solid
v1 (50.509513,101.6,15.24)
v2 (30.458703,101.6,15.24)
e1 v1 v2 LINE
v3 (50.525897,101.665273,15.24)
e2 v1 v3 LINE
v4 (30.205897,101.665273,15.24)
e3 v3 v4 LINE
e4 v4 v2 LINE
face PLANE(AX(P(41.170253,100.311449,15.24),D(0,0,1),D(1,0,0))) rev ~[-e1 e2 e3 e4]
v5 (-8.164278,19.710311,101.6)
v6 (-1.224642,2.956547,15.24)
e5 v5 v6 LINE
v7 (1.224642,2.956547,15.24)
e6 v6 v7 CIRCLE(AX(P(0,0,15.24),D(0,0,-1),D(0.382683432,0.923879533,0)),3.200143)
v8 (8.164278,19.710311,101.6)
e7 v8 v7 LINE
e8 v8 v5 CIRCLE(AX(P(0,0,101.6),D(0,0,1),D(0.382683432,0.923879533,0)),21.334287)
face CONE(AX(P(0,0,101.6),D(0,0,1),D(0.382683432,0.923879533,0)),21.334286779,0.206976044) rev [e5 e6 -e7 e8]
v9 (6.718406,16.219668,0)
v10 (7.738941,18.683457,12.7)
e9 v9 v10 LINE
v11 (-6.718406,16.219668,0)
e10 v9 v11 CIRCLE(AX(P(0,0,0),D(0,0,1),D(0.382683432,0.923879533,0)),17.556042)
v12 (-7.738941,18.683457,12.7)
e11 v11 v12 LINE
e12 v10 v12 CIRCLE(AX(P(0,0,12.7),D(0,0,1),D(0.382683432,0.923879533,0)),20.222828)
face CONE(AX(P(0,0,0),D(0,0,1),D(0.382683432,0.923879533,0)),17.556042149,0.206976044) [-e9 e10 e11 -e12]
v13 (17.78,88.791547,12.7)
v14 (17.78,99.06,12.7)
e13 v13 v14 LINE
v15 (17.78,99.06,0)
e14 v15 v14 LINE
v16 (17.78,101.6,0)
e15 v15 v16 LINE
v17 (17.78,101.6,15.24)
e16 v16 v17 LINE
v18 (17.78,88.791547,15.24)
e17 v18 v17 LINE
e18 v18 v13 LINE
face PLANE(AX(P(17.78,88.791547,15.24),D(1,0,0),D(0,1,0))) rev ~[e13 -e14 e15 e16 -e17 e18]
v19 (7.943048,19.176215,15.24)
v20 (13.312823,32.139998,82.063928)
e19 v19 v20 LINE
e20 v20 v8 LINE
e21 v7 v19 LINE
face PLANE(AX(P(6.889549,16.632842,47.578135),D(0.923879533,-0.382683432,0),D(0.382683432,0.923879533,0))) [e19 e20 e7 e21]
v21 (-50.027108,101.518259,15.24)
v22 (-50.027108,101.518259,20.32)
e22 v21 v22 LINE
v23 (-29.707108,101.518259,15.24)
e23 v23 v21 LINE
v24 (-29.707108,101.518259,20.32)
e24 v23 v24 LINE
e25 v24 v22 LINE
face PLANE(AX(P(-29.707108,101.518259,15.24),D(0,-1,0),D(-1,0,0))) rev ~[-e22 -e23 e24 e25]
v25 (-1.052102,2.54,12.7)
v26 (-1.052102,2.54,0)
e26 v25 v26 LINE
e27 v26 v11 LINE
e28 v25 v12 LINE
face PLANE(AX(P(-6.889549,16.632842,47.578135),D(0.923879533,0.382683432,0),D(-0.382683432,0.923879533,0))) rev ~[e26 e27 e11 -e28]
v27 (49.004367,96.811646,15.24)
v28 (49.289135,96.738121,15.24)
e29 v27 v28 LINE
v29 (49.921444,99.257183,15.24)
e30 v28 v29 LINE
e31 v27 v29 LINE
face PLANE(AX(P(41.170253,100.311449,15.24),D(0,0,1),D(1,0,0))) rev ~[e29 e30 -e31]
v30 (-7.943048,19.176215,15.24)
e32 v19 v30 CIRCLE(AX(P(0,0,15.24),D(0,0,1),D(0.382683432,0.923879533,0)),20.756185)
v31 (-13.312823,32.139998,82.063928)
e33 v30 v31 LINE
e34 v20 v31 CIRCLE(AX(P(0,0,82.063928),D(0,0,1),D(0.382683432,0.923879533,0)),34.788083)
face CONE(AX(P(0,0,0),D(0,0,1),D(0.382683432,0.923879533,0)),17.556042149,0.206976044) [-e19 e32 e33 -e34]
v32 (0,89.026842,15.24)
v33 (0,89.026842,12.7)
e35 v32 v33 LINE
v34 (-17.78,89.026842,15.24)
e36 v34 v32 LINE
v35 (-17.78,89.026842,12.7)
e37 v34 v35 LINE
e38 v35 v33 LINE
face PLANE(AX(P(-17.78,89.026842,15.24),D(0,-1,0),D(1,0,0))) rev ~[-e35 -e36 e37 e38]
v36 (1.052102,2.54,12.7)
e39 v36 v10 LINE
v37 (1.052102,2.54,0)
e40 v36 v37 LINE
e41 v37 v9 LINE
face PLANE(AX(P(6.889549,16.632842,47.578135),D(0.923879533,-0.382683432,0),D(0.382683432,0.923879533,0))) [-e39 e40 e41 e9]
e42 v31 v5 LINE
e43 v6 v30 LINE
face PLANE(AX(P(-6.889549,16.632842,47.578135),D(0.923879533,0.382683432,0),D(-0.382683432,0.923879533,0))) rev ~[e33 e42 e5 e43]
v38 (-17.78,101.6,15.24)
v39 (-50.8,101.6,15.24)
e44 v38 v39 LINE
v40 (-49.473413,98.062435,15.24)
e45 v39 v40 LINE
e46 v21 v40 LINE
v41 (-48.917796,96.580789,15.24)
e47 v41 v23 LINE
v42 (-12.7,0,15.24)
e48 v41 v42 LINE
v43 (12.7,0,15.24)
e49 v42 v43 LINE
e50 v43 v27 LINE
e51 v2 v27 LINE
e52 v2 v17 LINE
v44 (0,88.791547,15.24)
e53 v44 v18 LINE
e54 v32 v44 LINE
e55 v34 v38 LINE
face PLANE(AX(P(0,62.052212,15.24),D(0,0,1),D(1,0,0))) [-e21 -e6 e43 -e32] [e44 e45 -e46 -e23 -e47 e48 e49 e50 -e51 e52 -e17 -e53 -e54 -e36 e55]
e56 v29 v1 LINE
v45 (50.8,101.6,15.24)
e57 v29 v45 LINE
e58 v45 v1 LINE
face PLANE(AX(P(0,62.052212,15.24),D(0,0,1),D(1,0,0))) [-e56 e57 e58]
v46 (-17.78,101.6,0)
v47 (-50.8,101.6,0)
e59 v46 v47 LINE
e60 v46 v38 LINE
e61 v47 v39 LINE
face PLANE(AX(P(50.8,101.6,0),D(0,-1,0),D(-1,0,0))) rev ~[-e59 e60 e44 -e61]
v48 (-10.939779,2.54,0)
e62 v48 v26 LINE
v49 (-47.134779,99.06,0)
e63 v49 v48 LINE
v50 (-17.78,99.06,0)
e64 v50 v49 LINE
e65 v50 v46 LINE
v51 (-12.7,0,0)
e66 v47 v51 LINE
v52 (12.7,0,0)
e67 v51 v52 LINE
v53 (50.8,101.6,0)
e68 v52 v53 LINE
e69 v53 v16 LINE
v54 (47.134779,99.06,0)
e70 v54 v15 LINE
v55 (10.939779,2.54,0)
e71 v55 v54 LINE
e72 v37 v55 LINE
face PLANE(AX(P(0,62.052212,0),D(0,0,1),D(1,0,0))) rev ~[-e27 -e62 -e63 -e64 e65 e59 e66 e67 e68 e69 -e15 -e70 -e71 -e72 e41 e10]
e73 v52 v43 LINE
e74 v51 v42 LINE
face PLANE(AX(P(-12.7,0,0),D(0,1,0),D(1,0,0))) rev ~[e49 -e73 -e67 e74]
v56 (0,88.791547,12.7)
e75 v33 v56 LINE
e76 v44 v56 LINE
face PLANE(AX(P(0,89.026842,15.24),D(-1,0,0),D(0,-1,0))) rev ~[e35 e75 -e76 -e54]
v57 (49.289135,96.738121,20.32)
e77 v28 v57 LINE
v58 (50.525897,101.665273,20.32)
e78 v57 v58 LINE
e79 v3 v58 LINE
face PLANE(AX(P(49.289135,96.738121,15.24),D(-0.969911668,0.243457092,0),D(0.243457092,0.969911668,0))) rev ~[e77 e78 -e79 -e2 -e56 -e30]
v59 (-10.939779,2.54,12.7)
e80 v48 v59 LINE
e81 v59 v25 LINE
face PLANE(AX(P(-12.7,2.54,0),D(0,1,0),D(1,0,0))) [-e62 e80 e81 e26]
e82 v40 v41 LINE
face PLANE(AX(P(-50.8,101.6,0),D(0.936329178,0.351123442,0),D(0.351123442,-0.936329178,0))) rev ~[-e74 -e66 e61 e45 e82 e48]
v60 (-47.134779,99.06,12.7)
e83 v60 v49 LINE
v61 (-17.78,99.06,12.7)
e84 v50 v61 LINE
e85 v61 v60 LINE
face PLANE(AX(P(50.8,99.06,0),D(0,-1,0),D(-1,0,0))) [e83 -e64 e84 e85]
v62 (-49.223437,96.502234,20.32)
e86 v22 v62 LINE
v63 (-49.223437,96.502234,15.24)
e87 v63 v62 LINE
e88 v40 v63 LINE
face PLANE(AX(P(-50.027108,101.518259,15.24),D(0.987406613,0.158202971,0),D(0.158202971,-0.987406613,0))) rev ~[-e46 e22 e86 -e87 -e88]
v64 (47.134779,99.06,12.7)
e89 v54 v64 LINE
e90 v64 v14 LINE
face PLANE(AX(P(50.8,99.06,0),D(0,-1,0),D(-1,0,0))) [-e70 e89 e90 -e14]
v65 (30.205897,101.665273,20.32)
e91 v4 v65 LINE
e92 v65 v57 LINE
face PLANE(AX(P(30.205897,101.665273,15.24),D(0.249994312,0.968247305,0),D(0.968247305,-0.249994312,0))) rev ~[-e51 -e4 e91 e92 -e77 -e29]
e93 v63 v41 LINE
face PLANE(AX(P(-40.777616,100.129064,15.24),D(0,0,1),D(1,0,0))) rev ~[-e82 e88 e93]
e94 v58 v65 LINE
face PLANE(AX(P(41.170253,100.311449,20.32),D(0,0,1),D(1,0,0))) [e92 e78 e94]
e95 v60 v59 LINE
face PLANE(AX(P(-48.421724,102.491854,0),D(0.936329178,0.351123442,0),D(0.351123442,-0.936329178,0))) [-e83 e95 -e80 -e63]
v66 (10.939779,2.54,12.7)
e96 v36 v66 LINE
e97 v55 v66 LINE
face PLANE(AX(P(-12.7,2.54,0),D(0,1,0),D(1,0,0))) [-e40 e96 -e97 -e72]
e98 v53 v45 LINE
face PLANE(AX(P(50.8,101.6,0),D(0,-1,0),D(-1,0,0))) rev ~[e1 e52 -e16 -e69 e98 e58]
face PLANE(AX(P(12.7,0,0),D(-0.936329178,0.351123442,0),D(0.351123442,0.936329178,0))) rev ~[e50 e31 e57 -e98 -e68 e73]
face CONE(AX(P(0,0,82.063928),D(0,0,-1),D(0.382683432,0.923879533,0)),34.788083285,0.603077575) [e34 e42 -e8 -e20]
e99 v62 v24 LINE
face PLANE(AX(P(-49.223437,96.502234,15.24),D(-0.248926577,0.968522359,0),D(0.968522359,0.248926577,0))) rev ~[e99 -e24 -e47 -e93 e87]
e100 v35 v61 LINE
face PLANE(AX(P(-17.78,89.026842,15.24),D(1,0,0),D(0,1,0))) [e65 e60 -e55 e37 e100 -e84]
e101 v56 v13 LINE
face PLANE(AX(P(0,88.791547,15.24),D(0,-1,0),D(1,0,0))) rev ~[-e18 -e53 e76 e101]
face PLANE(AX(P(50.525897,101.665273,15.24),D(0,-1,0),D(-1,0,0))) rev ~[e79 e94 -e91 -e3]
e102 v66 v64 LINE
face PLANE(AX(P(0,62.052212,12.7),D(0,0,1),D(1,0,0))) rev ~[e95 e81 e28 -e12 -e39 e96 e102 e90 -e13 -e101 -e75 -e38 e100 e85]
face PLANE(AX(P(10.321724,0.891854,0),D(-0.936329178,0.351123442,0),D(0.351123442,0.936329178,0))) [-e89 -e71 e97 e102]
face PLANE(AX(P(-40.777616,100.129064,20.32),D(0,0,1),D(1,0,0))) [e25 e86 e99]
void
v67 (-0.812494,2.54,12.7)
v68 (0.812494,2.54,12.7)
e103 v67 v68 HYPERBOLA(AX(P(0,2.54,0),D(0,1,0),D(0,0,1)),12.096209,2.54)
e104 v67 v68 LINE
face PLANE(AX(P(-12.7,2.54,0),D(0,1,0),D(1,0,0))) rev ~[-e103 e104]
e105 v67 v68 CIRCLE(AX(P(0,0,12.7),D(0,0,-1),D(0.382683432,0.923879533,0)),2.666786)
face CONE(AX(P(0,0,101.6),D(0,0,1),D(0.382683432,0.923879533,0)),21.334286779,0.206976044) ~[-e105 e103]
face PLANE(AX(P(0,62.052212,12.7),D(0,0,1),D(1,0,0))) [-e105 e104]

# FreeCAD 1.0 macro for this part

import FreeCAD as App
import Part
import Sketcher
Q = App.Units.Quantity


def faces_at(feature, points):
    """Names of the faces that lie closest to the given points."""
    faces = feature.Shape.Faces
    near = lambda p: min(range(len(faces)), key=lambda i: faces[i].distToShape(Part.Vertex(*p))[0])
    return sorted({f"Face{near(p) + 1}" for p in points})


def add_polygon(sketch, points):
    """Adds a closed chain of lines whose ends are joined by coincident constraints."""
    first, n = sketch.GeometryCount, len(points)
    for a, b in zip(points, points[1:] + points[:1]):
        sketch.addGeometry(Part.LineSegment(App.Vector(*a, 0), App.Vector(*b, 0)), False)
    for i in range(n):
        sketch.addConstraint(Sketcher.Constraint("Coincident", first + i, 2, first + (i + 1) % n, 1))

doc = App.newDocument("Part")
body = doc.addObject("PartDesign::Body", "Body")

# Sketch on XY plane
sketch1 = doc.addObject("Sketcher::SketchObject", "Sketch")
body.addObject(sketch1)
sketch1.AttachmentSupport = (doc.XY_Plane, [""])
sketch1.MapMode = "FlatFace"
add_polygon(sketch1, [(-51, 102), (-13, 0), (13, 0), (51, 102)])  # lines 0-3
sketch1.addConstraint(Sketcher.Constraint("Horizontal", 1))
sketch1.addConstraint(Sketcher.Constraint("Horizontal", 3))
sketch1.addConstraint(Sketcher.Constraint("Symmetric", 0, 2, 1, 2, -1, 1))
sketch1.addConstraint(Sketcher.Constraint("Equal", 0, 2))
sketch1.addConstraint(Sketcher.Constraint("DistanceX", 1, 1, 1, 2, Q("1 in")))
sketch1.addConstraint(Sketcher.Constraint("DistanceX", 3, 2, 3, 1, Q("4 in")))
sketch1.addConstraint(Sketcher.Constraint("DistanceY", -1, 1, 2, 2, Q("4 in")))
pad1 = doc.addObject("PartDesign::Pad", "Pad")
body.addObject(pad1)
pad1.Profile = sketch1
pad1.Length = Q("0.6 in")
doc.recompute()

thickness = doc.addObject("PartDesign::Thickness", "Thickness")
body.addObject(thickness)
thickness.Base = (pad1, faces_at(pad1, [(0, 50.8, 0)]))
thickness.Value = Q("0.1 in")
thickness.Reversed = True
thickness.Join = "Arc"

# Sketch on an angled plane
sketch2 = doc.addObject("Sketcher::SketchObject", "Sketch001")
body.addObject(sketch2)
sketch2.Placement = App.Placement(App.Vector(0, 0, 0), App.Rotation(App.Vector(0.382683432, 0.923879533, 0), App.Vector(0, 0, 1.000000001), App.Vector(0.923879533, -0.382683432, 0), "ZXY"))
add_polygon(sketch2, [(21, 102), (0, 0), (18, 0), (35, 82)])  # lines 0-3
sketch2.addConstraint(Sketcher.Constraint("Horizontal", 1))
sketch2.addConstraint(Sketcher.Constraint("Coincident", 0, 2, -1, 1))
sketch2.addConstraint(Sketcher.Constraint("Parallel", 0, 2))
sketch2.addConstraint(Sketcher.Constraint("DistanceY", -1, 1, 3, 2, Q("4 in")))
sketch2.addConstraint(Sketcher.Constraint("Distance", 0, Q("103.815759 mm")))
sketch2.addConstraint(Sketcher.Constraint("Distance", 2, Q("83.853632 mm")))
sketch2.addConstraint(Sketcher.Constraint("DistanceX", 1, 1, 1, 2, Q("17.556042 mm")))
revolution = doc.addObject("PartDesign::Revolution", "Revolution")
body.addObject(revolution)
revolution.Profile = sketch2
revolution.ReferenceAxis = (sketch2, ["V_Axis"])
revolution.Angle = 45

# Sketch on XY plane
sketch3 = doc.addObject("Sketcher::SketchObject", "Sketch002")
body.addObject(sketch3)
sketch3.AttachmentSupport = (doc.XY_Plane, [""])
sketch3.MapMode = "FlatFace"
sketch3.AttachmentOffset = App.Placement(App.Vector(0, 0, 0.6 * 25.4), App.Rotation())
add_polygon(sketch3, [(49, 97), (51, 102), (30, 102)])  # lines 0-2
add_polygon(sketch3, [(-30, 102), (-50, 102), (-49, 97)])  # lines 3-5
sketch3.addConstraint(Sketcher.Constraint("Horizontal", 1))
sketch3.addConstraint(Sketcher.Constraint("Horizontal", 3))
sketch3.addConstraint(Sketcher.Constraint("Equal", 1, 3))
sketch3.addConstraint(Sketcher.Constraint("Equal", 0, 4))
sketch3.addConstraint(Sketcher.Constraint("DistanceX", 1, 2, 1, 1, Q("0.8 in")))
sketch3.addConstraint(Sketcher.Constraint("Distance", 0, Q("0.2 in")))
sketch3.addConstraint(Sketcher.Constraint("DistanceY", -1, 1, 2, 2, Q("96.738121 mm")))
sketch3.addConstraint(Sketcher.Constraint("DistanceY", -1, 1, 3, 2, Q("101.518259 mm")))
sketch3.addConstraint(Sketcher.Constraint("DistanceY", 2, 2, 0, 2, Q("4.927151 mm")))
sketch3.addConstraint(Sketcher.Constraint("DistanceX", 3, 2, 4, 2, Q("0.803671 mm")))
sketch3.addConstraint(Sketcher.Constraint("DistanceX", 4, 2, 2, 2, Q("98.512572 mm")))
sketch3.addConstraint(Sketcher.Constraint("DistanceX", -1, 1, 0, 2, Q("50.525897 mm")))
pad2 = doc.addObject("PartDesign::Pad", "Pad001")
body.addObject(pad2)
pad2.Profile = sketch3
pad2.Length = Q("0.2 in")

# Sketch on XY plane
sketch4 = doc.addObject("Sketcher::SketchObject", "Sketch003")
body.addObject(sketch4)
sketch4.AttachmentSupport = (doc.XY_Plane, [""])
sketch4.MapMode = "FlatFace"
sketch4.AttachmentOffset = App.Placement(App.Vector(0, 0, 0.6 * 25.4), App.Rotation())
add_polygon(sketch4, [(17.78, 101.73), (-17.78, 101.73), (-17.78, 89.03), (0, 89.03), (0, 88.79), (17.78, 88.79)])  # lines 0-5
sketch4.addConstraint(Sketcher.Constraint("Horizontal", 0))
sketch4.addConstraint(Sketcher.Constraint("Vertical", 1))
sketch4.addConstraint(Sketcher.Constraint("Horizontal", 2))
sketch4.addConstraint(Sketcher.Constraint("Vertical", 3))
sketch4.addConstraint(Sketcher.Constraint("Horizontal", 4))
sketch4.addConstraint(Sketcher.Constraint("Vertical", 5))
sketch4.addConstraint(Sketcher.Constraint("PointOnObject", 2, 2, -2))
sketch4.addConstraint(Sketcher.Constraint("Equal", 2, 4))
sketch4.addConstraint(Sketcher.Constraint("DistanceX", 0, 2, 0, 1, Q("1.4 in")))
sketch4.addConstraint(Sketcher.Constraint("DistanceY", 1, 2, 1, 1, Q("0.5 in")))
sketch4.addConstraint(Sketcher.Constraint("DistanceY", 3, 2, 3, 1, Q("0.235295 mm")))
sketch4.addConstraint(Sketcher.Constraint("DistanceY", -1, 1, 0, 2, Q("101.726842 mm")))
pocket1 = doc.addObject("PartDesign::Pocket", "Pocket")
body.addObject(pocket1)
pocket1.Profile = sketch4
pocket1.Type = "ThroughAll"

doc.recompute()
